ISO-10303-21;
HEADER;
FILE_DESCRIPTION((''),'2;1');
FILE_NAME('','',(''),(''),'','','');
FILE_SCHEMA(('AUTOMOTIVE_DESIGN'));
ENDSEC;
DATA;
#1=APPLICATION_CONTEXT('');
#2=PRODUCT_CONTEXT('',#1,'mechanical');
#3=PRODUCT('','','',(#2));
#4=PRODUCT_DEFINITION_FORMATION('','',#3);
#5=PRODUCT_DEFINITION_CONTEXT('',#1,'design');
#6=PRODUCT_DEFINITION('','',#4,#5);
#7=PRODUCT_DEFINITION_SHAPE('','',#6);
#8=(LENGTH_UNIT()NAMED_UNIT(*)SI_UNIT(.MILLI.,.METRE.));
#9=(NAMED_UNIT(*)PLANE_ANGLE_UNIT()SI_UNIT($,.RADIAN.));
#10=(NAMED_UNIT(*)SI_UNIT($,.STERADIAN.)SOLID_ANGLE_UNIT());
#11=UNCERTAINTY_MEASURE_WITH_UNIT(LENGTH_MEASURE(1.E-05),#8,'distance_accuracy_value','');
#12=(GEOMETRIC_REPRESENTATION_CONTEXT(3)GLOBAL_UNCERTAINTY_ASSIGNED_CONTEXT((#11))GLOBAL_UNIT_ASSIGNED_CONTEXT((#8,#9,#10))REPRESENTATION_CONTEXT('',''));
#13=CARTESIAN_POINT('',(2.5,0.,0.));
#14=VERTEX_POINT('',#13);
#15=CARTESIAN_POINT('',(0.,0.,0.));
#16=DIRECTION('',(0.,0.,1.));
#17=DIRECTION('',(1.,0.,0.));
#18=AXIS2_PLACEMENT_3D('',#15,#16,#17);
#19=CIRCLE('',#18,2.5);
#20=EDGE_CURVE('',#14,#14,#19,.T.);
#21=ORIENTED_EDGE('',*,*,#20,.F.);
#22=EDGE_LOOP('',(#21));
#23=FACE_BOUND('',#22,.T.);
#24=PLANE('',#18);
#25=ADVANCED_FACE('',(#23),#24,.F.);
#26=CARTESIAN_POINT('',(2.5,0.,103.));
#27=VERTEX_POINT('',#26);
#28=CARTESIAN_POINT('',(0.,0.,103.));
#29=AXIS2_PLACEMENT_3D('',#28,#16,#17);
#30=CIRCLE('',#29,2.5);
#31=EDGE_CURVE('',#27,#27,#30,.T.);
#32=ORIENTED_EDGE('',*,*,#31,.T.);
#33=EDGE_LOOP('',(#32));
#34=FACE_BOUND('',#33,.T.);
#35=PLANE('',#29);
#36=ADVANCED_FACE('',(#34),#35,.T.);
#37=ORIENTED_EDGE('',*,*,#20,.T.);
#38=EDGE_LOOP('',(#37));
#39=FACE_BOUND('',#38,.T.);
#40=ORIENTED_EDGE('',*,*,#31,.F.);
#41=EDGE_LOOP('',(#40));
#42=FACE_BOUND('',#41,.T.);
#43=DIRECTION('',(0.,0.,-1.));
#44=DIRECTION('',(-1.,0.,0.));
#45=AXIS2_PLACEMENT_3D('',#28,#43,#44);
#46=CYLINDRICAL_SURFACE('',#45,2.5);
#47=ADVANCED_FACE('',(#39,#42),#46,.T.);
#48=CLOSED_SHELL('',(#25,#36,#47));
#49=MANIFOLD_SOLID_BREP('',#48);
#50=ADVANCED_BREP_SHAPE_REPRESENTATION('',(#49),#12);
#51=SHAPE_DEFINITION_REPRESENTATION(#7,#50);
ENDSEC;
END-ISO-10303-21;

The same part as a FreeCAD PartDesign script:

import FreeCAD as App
import Part
import Sketcher
from FreeCAD import Vector
Q = App.Units.Quantity

doc = App.newDocument("Part")
body = doc.addObject("PartDesign::Body", "Body")

sketch1 = doc.addObject("Sketcher::SketchObject", "Sketch")
body.addObject(sketch1)
sketch1.AttachmentSupport = (doc.XY_Plane, [""])
sketch1.MapMode = "FlatFace"
sketch1.addGeometry(Part.Circle(Vector(0, 0, 0), Vector(0, 0, 1), 2.5), False)
sketch1.addConstraint([
    Sketcher.Constraint("Coincident", 0, 3, -1, 1),
    Sketcher.Constraint("Diameter", 0, Q("5 mm")),
])
pad1 = doc.addObject("PartDesign::Pad", "Pad")
body.addObject(pad1)
pad1.Profile = sketch1
pad1.Length = 103

doc.recompute()
